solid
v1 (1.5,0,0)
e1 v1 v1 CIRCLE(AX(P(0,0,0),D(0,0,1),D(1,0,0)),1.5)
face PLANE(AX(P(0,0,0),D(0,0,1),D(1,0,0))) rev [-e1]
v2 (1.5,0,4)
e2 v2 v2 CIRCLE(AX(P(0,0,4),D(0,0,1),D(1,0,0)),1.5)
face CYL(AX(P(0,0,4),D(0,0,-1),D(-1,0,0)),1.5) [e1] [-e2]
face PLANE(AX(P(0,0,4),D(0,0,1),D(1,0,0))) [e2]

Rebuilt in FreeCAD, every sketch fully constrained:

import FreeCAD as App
import Part
import Sketcher
from FreeCAD import Vector
Q = App.Units.Quantity

doc = App.newDocument("Part")
params = doc.addObject("Spreadsheet::Sheet", "Params")
for row, (alias, value) in enumerate([
    ("sketch1_diameter", "3 mm"),
    ("pad1_length", "4 mm"),
], start=1):
    params.set(f"A{row}", alias)
    params.set(f"B{row}", "=" + value)
    params.setAlias(f"B{row}", alias)

body = doc.addObject("PartDesign::Body", "Body")

sketch1 = body.newObject("Sketcher::SketchObject", "Sketch")
sketch1.AttachmentSupport = (doc.getObject("XY_Plane"), [""])
sketch1.MapMode = "FlatFace"
sketch1.addGeometry(Part.Circle(Vector(0, 0, 0), Vector(0, 0, 1), 1.5), False)
sketch1.addConstraint([
    Sketcher.Constraint("Coincident", 0, 3, -1, 1),
    Sketcher.Constraint("Diameter", 0, Q("3 mm")),
])
sketch1.setExpression("Constraints[1]", "Params.sketch1_diameter")
pad1 = body.newObject("PartDesign::Pad", "Pad")
pad1.Profile = sketch1
pad1.setExpression("Length", "Params.pad1_length")

doc.recompute()
